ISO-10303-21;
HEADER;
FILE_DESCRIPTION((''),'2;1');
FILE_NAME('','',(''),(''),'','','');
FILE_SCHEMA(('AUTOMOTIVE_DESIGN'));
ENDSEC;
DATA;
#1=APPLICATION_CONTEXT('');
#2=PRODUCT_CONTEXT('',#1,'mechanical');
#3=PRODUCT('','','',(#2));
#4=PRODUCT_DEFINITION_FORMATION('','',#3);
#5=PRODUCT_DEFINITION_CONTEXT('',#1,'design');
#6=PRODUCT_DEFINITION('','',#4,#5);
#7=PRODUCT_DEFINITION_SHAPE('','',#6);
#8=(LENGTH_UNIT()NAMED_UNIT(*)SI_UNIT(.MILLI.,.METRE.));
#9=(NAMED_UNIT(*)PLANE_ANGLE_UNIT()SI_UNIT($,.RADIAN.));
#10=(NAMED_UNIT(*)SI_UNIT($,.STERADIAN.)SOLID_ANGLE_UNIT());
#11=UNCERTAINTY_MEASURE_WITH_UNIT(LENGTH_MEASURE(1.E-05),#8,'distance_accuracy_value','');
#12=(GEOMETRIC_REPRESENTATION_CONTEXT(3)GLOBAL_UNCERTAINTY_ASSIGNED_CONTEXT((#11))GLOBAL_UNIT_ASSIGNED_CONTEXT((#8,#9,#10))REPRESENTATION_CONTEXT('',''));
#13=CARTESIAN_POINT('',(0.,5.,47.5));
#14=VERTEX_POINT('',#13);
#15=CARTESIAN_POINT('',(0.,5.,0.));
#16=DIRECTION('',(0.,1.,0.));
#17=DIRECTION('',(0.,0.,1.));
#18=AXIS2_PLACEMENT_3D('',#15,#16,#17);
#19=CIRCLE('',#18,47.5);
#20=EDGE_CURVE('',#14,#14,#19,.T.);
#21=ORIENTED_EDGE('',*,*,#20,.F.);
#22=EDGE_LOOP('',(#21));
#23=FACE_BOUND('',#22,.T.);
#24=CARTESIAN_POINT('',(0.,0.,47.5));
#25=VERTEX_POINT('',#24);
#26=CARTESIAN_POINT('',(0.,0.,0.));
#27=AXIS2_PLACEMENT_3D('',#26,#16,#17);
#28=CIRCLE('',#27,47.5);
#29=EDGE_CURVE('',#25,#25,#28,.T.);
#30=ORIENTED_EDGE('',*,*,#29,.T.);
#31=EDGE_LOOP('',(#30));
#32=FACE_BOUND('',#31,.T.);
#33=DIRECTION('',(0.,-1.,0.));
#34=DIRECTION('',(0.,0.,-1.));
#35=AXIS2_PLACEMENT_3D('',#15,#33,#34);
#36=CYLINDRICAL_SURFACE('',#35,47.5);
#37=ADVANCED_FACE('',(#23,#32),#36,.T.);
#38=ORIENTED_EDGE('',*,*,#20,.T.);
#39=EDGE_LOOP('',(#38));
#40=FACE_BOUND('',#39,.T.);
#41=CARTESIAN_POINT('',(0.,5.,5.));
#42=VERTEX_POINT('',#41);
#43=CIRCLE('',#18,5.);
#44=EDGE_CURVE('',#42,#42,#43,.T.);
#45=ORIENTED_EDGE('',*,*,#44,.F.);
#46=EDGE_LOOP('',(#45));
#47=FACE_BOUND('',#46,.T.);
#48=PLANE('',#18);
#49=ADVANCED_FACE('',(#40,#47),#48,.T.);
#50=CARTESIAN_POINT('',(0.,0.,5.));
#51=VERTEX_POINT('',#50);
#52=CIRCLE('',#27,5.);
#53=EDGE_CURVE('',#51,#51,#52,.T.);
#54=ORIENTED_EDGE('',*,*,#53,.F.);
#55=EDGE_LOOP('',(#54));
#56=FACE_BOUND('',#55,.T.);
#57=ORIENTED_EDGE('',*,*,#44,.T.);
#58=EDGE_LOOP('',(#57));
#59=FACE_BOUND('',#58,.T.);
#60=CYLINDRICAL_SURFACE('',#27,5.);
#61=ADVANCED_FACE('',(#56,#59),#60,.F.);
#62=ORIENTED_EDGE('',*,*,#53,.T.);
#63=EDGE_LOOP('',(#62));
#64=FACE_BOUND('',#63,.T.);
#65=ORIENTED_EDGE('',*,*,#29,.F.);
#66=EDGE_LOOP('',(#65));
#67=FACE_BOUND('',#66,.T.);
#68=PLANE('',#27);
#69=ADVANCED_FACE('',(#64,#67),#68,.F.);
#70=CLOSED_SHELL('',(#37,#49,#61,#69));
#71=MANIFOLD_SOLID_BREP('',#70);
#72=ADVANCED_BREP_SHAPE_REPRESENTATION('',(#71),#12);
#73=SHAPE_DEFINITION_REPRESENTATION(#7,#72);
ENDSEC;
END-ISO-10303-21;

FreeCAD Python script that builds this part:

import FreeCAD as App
import Part
import Sketcher
Q = App.Units.Quantity

doc = App.newDocument("Part")
params = doc.addObject("Spreadsheet::Sheet", "Params")
for row, (alias, value) in enumerate([
    ("sketch1_diameter", "95 mm"),
    ("pad1_length", "5 mm"),
    ("sketch2_diameter", "10 mm"),
    ("pocket1_length", "5 mm"),
], start=1):
    params.set(f"A{row}", alias)
    params.set(f"B{row}", "=" + value)
    params.setAlias(f"B{row}", alias)

body = doc.addObject("PartDesign::Body", "Body")

sketch1 = doc.addObject("Sketcher::SketchObject", "Sketch")
body.addObject(sketch1)
sketch1.AttachmentSupport = (doc.XZ_Plane, [""])
sketch1.MapMode = "FlatFace"
sketch1.addGeometry(Part.Circle(App.Vector(0, 0, 0), App.Vector(0, 0, 1), 48), False)
sketch1.addConstraint([
    Sketcher.Constraint("Coincident", 0, 3, -1, 1),
    Sketcher.Constraint("Diameter", 0, Q("95 mm")),
])
sketch1.setExpression("Constraints[1]", "Params.sketch1_diameter")
pad1 = doc.addObject("PartDesign::Pad", "Pad")
body.addObject(pad1)
pad1.Profile = sketch1
pad1.setExpression("Length", "Params.pad1_length")
pad1.Reversed = True

sketch2 = doc.addObject("Sketcher::SketchObject", "Sketch001")
body.addObject(sketch2)
sketch2.AttachmentSupport = (doc.XZ_Plane, [""])
sketch2.MapMode = "FlatFace"
sketch2.AttachmentOffset = App.Placement(App.Vector(0, 0, -5), App.Rotation())
sketch2.addGeometry(Part.Circle(App.Vector(0, 0, 0), App.Vector(0, 0, 1), 5), False)
sketch2.addConstraint([
    Sketcher.Constraint("Coincident", 0, 3, -1, 1),
    Sketcher.Constraint("Diameter", 0, Q("10 mm")),
])
sketch2.setExpression("Constraints[1]", "Params.sketch2_diameter")
pocket1 = doc.addObject("PartDesign::Pocket", "Pocket")
body.addObject(pocket1)
pocket1.Profile = sketch2
pocket1.setExpression("Length", "Params.pocket1_length")
pocket1.Reversed = True

doc.recompute()
